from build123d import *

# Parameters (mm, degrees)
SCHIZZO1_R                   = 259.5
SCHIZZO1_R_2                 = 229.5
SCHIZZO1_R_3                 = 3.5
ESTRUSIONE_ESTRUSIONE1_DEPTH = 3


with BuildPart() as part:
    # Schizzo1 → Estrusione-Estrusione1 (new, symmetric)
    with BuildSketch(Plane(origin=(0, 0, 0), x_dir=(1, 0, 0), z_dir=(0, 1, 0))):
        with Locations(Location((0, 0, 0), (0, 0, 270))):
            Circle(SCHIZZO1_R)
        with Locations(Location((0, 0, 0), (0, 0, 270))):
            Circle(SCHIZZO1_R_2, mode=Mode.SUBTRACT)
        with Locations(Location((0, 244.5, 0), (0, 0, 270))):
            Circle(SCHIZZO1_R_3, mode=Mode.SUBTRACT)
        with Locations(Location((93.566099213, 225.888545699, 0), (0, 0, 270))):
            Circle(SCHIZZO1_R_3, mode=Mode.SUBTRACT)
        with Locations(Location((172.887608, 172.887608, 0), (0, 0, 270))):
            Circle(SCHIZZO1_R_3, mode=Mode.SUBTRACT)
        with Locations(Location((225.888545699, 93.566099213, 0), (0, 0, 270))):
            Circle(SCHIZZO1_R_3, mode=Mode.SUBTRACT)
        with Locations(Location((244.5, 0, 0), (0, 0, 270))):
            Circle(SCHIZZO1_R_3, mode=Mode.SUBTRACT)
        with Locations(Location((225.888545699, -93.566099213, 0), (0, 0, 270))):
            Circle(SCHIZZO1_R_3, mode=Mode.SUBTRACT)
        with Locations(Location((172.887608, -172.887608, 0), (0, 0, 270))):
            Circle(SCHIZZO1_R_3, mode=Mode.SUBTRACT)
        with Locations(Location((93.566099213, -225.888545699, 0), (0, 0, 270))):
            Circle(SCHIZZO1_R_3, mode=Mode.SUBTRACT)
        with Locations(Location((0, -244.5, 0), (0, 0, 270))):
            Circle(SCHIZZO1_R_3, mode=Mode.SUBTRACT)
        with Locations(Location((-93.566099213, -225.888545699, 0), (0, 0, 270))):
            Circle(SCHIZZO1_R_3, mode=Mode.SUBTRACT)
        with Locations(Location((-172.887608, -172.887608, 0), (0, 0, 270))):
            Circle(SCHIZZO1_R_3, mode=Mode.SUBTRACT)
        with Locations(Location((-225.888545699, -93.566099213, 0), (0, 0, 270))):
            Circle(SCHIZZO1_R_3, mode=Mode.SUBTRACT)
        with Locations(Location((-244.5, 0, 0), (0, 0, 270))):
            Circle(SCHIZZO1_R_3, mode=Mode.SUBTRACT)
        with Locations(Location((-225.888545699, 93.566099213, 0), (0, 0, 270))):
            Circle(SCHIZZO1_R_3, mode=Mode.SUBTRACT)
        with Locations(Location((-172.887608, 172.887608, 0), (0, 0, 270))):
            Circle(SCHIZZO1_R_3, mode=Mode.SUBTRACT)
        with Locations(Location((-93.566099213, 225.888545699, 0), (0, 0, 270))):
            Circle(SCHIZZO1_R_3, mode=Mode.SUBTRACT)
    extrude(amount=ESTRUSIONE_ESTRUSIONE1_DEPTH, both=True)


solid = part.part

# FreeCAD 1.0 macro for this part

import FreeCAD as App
import Part
import Sketcher
from FreeCAD import Vector
Q = App.Units.Quantity

doc = App.newDocument("Part")
params = doc.addObject("Spreadsheet::Sheet", "Params")
for row, (alias, value) in enumerate([
    ("sketch1_diameter", "519 mm"),
    ("sketch1_diameter2", "7 mm"),
    ("sketch1_diameter3", "459 mm"),
    ("pad1_length", "6 mm"),
], start=1):
    params.set(f"A{row}", alias)
    params.set(f"B{row}", "=" + value)
    params.setAlias(f"B{row}", alias)

body = doc.addObject("PartDesign::Body", "Body")

# Sketch on XZ plane
sketch1 = body.newObject("Sketcher::SketchObject", "Sketch")
sketch1.AttachmentSupport = (doc.getObject("XZ_Plane"), [""])
sketch1.MapMode = "FlatFace"
sketch1.addGeometry([
    Part.Circle(Vector(0, 0, 0), Vector(0, 0, 1), 259.5),  # 0
    Part.Circle(Vector(-172.9, -172.9, 0), Vector(0, 0, 1), 3.5),  # 1
    Part.Circle(Vector(-225.9, -93.6, 0), Vector(0, 0, 1), 3.5),  # 2
    Part.Circle(Vector(-93.6, -225.9, 0), Vector(0, 0, 1), 3.5),  # 3
    Part.Circle(Vector(0, -244.5, 0), Vector(0, 0, 1), 3.5),  # 4
    Part.Circle(Vector(-244.5, 0, 0), Vector(0, 0, 1), 3.5),  # 5
    Part.Circle(Vector(-225.9, 93.6, 0), Vector(0, 0, 1), 3.5),  # 6
    Part.Circle(Vector(-172.9, 172.9, 0), Vector(0, 0, 1), 3.5),  # 7
    Part.Circle(Vector(-93.6, 225.9, 0), Vector(0, 0, 1), 3.5),  # 8
    Part.Circle(Vector(93.6, -225.9, 0), Vector(0, 0, 1), 3.5),  # 9
    Part.Circle(Vector(172.9, -172.9, 0), Vector(0, 0, 1), 3.5),  # 10
    Part.Circle(Vector(225.9, -93.6, 0), Vector(0, 0, 1), 3.5),  # 11
    Part.Circle(Vector(244.5, 0, 0), Vector(0, 0, 1), 3.5),  # 12
    Part.Circle(Vector(0, 0, 0), Vector(0, 0, 1), 229.5),  # 13
    Part.Circle(Vector(0, 244.5, 0), Vector(0, 0, 1), 3.5),  # 14
    Part.Circle(Vector(93.6, 225.9, 0), Vector(0, 0, 1), 3.5),  # 15
    Part.Circle(Vector(225.9, 93.6, 0), Vector(0, 0, 1), 3.5),  # 16
    Part.Circle(Vector(172.9, 172.9, 0), Vector(0, 0, 1), 3.5),  # 17
], False)
sketch1.addConstraint([
    Sketcher.Constraint("Coincident", 0, 3, -1, 1),
    Sketcher.Constraint("Coincident", 13, 3, -1, 1),
    Sketcher.Constraint("Equal", 1, 2),
    Sketcher.Constraint("Equal", 2, 3),
    Sketcher.Constraint("Equal", 3, 4),
    Sketcher.Constraint("Equal", 4, 5),
    Sketcher.Constraint("Equal", 5, 6),
    Sketcher.Constraint("Equal", 6, 7),
    Sketcher.Constraint("Equal", 7, 8),
    Sketcher.Constraint("Equal", 8, 9),
    Sketcher.Constraint("Equal", 9, 10),
    Sketcher.Constraint("Equal", 10, 11),
    Sketcher.Constraint("Equal", 11, 12),
    Sketcher.Constraint("Equal", 12, 14),
    Sketcher.Constraint("Equal", 14, 15),
    Sketcher.Constraint("Equal", 15, 16),
    Sketcher.Constraint("Equal", 16, 17),
    Sketcher.Constraint("Symmetric", 8, 3, 9, 3, -1, 1),
    Sketcher.Constraint("Symmetric", 7, 3, 10, 3, -1, 1),
    Sketcher.Constraint("Symmetric", 6, 3, 11, 3, -1, 1),
    Sketcher.Constraint("Symmetric", 5, 3, 12, 3, -1, 1),
    Sketcher.Constraint("Symmetric", 4, 3, 14, 3, -1, 1),
    Sketcher.Constraint("Symmetric", 3, 3, 15, 3, -1, 1),
    Sketcher.Constraint("Symmetric", 2, 3, 16, 3, -1, 1),
    Sketcher.Constraint("Symmetric", 1, 3, 17, 3, -1, 1),
    Sketcher.Constraint("Symmetric", 3, 3, 9, 3, -2),
    Sketcher.Constraint("Symmetric", 1, 3, 10, 3, -2),
    Sketcher.Constraint("Symmetric", 2, 3, 11, 3, -2),
    Sketcher.Constraint("PointOnObject", 4, 3, -2),
    Sketcher.Constraint("PointOnObject", 5, 3, -1),
    Sketcher.Constraint("Diameter", 0, Q("519 mm")),
    Sketcher.Constraint("Diameter", 1, Q("7 mm")),
    Sketcher.Constraint("Diameter", 13, Q("459 mm")),
    Sketcher.Constraint("DistanceY", 4, 3, -1, 1, Q("244.5 mm")),
    Sketcher.Constraint("DistanceX", 5, 3, -1, 1, Q("244.5 mm")),
    Sketcher.Constraint("DistanceY", 2, 3, -1, 1, Q("93.566099 mm")),
    Sketcher.Constraint("DistanceX", 3, 3, -1, 1, Q("93.566099 mm")),
    Sketcher.Constraint("DistanceX", 1, 3, -1, 1, Q("172.887608 mm")),
    Sketcher.Constraint("DistanceY", 1, 3, -1, 1, Q("172.887608 mm")),
    Sketcher.Constraint("DistanceX", 2, 3, -1, 1, Q("225.888546 mm")),
    Sketcher.Constraint("DistanceY", 3, 3, -1, 1, Q("225.888546 mm")),
])
sketch1.setExpression("Constraints[30]", "Params.sketch1_diameter")
sketch1.setExpression("Constraints[31]", "Params.sketch1_diameter2")
sketch1.setExpression("Constraints[32]", "Params.sketch1_diameter3")
pad1 = body.newObject("PartDesign::Pad", "Pad")
pad1.Profile = sketch1
pad1.setExpression("Length", "Params.pad1_length")
pad1.Midplane = True

doc.recompute()
